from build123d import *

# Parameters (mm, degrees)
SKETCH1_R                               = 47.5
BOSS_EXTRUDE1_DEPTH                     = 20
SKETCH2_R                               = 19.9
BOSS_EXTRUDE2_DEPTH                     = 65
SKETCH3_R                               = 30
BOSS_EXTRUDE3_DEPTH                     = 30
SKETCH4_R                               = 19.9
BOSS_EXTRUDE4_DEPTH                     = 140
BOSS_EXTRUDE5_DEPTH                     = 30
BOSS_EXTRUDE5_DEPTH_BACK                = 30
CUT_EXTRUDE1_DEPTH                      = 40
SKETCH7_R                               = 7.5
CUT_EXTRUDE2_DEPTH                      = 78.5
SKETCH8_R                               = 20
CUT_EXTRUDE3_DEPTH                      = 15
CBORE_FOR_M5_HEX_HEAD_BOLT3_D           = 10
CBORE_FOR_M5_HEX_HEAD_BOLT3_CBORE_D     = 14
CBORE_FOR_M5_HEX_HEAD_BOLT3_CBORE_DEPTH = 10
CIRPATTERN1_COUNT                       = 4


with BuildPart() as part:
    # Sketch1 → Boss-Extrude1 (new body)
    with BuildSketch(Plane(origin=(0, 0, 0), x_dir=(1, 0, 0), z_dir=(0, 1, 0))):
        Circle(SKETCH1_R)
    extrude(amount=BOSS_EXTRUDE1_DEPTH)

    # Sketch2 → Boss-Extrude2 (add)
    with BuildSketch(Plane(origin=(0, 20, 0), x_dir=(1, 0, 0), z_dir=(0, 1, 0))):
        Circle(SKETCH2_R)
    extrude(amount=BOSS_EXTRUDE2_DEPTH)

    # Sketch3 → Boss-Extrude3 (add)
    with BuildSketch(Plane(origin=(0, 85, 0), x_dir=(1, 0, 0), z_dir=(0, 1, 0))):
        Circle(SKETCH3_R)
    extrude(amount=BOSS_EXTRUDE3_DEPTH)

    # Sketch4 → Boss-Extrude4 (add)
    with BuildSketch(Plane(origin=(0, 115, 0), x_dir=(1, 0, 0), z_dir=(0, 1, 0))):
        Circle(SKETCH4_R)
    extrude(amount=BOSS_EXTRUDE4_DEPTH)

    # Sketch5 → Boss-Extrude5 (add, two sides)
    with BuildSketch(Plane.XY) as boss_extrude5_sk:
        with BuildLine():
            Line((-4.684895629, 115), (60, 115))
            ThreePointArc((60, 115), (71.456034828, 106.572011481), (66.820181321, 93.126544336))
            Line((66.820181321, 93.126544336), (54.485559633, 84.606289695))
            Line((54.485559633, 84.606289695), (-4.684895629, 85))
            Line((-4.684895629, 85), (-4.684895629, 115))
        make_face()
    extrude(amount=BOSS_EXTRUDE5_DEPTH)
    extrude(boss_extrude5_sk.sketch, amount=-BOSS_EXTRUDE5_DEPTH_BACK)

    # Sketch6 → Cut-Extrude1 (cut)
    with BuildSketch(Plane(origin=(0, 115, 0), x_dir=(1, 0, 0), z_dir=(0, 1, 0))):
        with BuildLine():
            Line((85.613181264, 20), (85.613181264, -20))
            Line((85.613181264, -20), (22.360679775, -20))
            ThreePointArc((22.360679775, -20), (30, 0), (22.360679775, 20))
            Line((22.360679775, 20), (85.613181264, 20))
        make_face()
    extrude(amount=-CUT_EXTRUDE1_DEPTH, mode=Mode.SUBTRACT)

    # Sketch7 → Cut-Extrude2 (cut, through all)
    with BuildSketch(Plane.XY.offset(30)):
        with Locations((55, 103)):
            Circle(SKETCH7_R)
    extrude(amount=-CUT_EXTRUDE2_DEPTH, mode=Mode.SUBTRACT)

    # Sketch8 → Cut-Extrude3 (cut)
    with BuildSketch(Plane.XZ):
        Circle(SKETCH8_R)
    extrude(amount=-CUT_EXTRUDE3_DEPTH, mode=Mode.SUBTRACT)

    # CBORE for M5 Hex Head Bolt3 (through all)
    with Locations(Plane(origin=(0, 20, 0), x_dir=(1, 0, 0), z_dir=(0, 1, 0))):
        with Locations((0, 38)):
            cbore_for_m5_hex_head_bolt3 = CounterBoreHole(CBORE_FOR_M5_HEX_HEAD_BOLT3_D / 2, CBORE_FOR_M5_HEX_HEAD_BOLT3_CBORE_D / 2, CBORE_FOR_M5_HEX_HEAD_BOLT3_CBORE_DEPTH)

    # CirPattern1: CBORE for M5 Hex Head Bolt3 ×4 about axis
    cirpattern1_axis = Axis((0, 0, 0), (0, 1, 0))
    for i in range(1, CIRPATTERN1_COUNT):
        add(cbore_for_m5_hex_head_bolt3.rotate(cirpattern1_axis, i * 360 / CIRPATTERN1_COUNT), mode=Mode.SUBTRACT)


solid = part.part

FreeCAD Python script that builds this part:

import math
import FreeCAD as App
import Part
import Sketcher

V = App.Vector
Q = App.Units.Quantity

doc = App.newDocument("Part")
body = doc.addObject("PartDesign::Body", "Body")

# Sketch on XZ plane
sketch1 = doc.addObject("Sketcher::SketchObject", "Sketch")
body.addObject(sketch1)
sketch1.AttachmentSupport = (doc.XZ_Plane, [""])
sketch1.MapMode = "FlatFace"
sketch1.addGeometry(Part.Circle(V(0, 0, 0), V(0, 0, 1), 47.5), False)
sketch1.addConstraint(Sketcher.Constraint("Coincident", 0, 3, -1, 1))
sketch1.addConstraint(Sketcher.Constraint("Diameter", 0, Q("95 mm")))
pad1 = doc.addObject("PartDesign::Pad", "Pad")
body.addObject(pad1)
pad1.Profile = sketch1
pad1.Length = 20
pad1.Reversed = True

# Sketch on XZ plane
sketch2 = doc.addObject("Sketcher::SketchObject", "Sketch001")
body.addObject(sketch2)
sketch2.AttachmentSupport = (doc.XZ_Plane, [""])
sketch2.MapMode = "FlatFace"
sketch2.AttachmentOffset = App.Placement(V(0, 0, -20), App.Rotation())
sketch2.addGeometry(Part.Circle(V(0, 0, 0), V(0, 0, 1), 19.9), False)
sketch2.addConstraint(Sketcher.Constraint("Coincident", 0, 3, -1, 1))
sketch2.addConstraint(Sketcher.Constraint("Diameter", 0, Q("39.8 mm")))
pad2 = doc.addObject("PartDesign::Pad", "Pad001")
body.addObject(pad2)
pad2.Profile = sketch2
pad2.Length = 65
pad2.Reversed = True

# Sketch on XZ plane
sketch3 = doc.addObject("Sketcher::SketchObject", "Sketch002")
body.addObject(sketch3)
sketch3.AttachmentSupport = (doc.XZ_Plane, [""])
sketch3.MapMode = "FlatFace"
sketch3.AttachmentOffset = App.Placement(V(0, 0, -85), App.Rotation())
sketch3.addGeometry(Part.Circle(V(0, 0, 0), V(0, 0, 1), 30), False)
sketch3.addConstraint(Sketcher.Constraint("Coincident", 0, 3, -1, 1))
sketch3.addConstraint(Sketcher.Constraint("Diameter", 0, Q("60 mm")))
pad3 = doc.addObject("PartDesign::Pad", "Pad002")
body.addObject(pad3)
pad3.Profile = sketch3
pad3.Length = 30
pad3.Reversed = True

# Sketch on XZ plane
sketch4 = doc.addObject("Sketcher::SketchObject", "Sketch003")
body.addObject(sketch4)
sketch4.AttachmentSupport = (doc.XZ_Plane, [""])
sketch4.MapMode = "FlatFace"
sketch4.AttachmentOffset = App.Placement(V(0, 0, -115), App.Rotation())
sketch4.addGeometry(Part.Circle(V(0, 0, 0), V(0, 0, 1), 19.9), False)
sketch4.addConstraint(Sketcher.Constraint("Coincident", 0, 3, -1, 1))
sketch4.addConstraint(Sketcher.Constraint("Diameter", 0, Q("39.8 mm")))
pad4 = doc.addObject("PartDesign::Pad", "Pad003")
body.addObject(pad4)
pad4.Profile = sketch4
pad4.Length = 140
pad4.Reversed = True

# Sketch on XY plane
sketch5 = doc.addObject("Sketcher::SketchObject", "Sketch004")
body.addObject(sketch5)
sketch5.AttachmentSupport = (doc.XY_Plane, [""])
sketch5.MapMode = "FlatFace"
sketch5.addGeometry(Part.LineSegment(V(60, 115, 0), V(-4.684896, 115, 0)), False)
sketch5.addGeometry(Part.LineSegment(V(-4.684896, 115, 0), V(-4.684896, 85, 0)), False)
sketch5.addGeometry(Part.LineSegment(V(-4.684896, 85, 0), V(54.48556, 84.60629, 0)), False)
sketch5.addGeometry(Part.LineSegment(V(54.48556, 84.60629, 0), V(66.820181, 93.126544, 0)), False)
sketch5.addGeometry(Part.ArcOfCircle(Part.Circle(V(60, 103, 0), V(0, 0, 1), 12), math.radians(-55.364862), math.radians(90)), False)
sketch5.addConstraint(Sketcher.Constraint("Coincident", 0, 2, 1, 1))
sketch5.addConstraint(Sketcher.Constraint("Coincident", 1, 2, 2, 1))
sketch5.addConstraint(Sketcher.Constraint("Coincident", 2, 2, 3, 1))
sketch5.addConstraint(Sketcher.Constraint("Tangent", 3, 2, 4, 1))
sketch5.addConstraint(Sketcher.Constraint("Tangent", 4, 2, 0, 1))
sketch5.addConstraint(Sketcher.Constraint("Horizontal", 0))
sketch5.addConstraint(Sketcher.Constraint("Vertical", 1))
sketch5.addConstraint(Sketcher.Constraint("Radius", 4, Q("12 mm")))
sketch5.addConstraint(Sketcher.Constraint("DistanceY", 1, 2, 1, 1, Q("30 mm")))
sketch5.addConstraint(Sketcher.Constraint("DistanceX", -1, 1, 4, 3, Q("60 mm")))
sketch5.addConstraint(Sketcher.Constraint("DistanceY", -1, 1, 4, 3, Q("103 mm")))
sketch5.addConstraint(Sketcher.Constraint("Distance", 3, Q("14.991252 mm")))
sketch5.addConstraint(Sketcher.Constraint("DistanceX", 0, 2, 0, 1, Q("64.684896 mm")))
sketch5.addConstraint(Sketcher.Constraint("DistanceX", -1, 1, 2, 2, Q("54.48556 mm")))
pad5 = doc.addObject("PartDesign::Pad", "Pad004")
body.addObject(pad5)
pad5.Profile = sketch5
pad5.Type = "TwoLengths"
pad5.Length = 30
pad5.Length2 = 30

# Sketch on XZ plane
sketch6 = doc.addObject("Sketcher::SketchObject", "Sketch005")
body.addObject(sketch6)
sketch6.AttachmentSupport = (doc.XZ_Plane, [""])
sketch6.MapMode = "FlatFace"
sketch6.AttachmentOffset = App.Placement(V(0, 0, -115), App.Rotation())
sketch6.addGeometry(Part.LineSegment(V(85.613181, 20, 0), V(85.613181, -20, 0)), False)
sketch6.addGeometry(Part.LineSegment(V(85.613181, -20, 0), V(22.36068, -20, 0)), False)
sketch6.addGeometry(Part.ArcOfCircle(Part.Circle(V(0, 0, 0), V(0, 0, 1), 30), math.radians(-41.810315), math.radians(41.810315)), False)
sketch6.addGeometry(Part.LineSegment(V(22.36068, 20, 0), V(85.613181, 20, 0)), False)
sketch6.addConstraint(Sketcher.Constraint("Coincident", 0, 2, 1, 1))
sketch6.addConstraint(Sketcher.Constraint("Coincident", 1, 2, 2, 1))
sketch6.addConstraint(Sketcher.Constraint("Coincident", 2, 2, 3, 1))
sketch6.addConstraint(Sketcher.Constraint("Coincident", 3, 2, 0, 1))
sketch6.addConstraint(Sketcher.Constraint("Vertical", 0))
sketch6.addConstraint(Sketcher.Constraint("Horizontal", 1))
sketch6.addConstraint(Sketcher.Constraint("Horizontal", 3))
sketch6.addConstraint(Sketcher.Constraint("Coincident", 2, 3, -1, 1))
sketch6.addConstraint(Sketcher.Constraint("Vertical", 1, 2, 2, 2))
sketch6.addConstraint(Sketcher.Constraint("Radius", 2, Q("30 mm")))
sketch6.addConstraint(Sketcher.Constraint("DistanceY", 0, 2, 0, 1, Q("40 mm")))
sketch6.addConstraint(Sketcher.Constraint("DistanceX", 1, 2, 1, 1, Q("63.252501 mm")))
pocket1 = doc.addObject("PartDesign::Pocket", "Pocket")
body.addObject(pocket1)
pocket1.Profile = sketch6
pocket1.Length = 40
pocket1.Reversed = True

# Sketch on XY plane
sketch7 = doc.addObject("Sketcher::SketchObject", "Sketch006")
body.addObject(sketch7)
sketch7.AttachmentSupport = (doc.XY_Plane, [""])
sketch7.MapMode = "FlatFace"
sketch7.AttachmentOffset = App.Placement(V(0, 0, 30), App.Rotation())
sketch7.addGeometry(Part.Circle(V(55, 103, 0), V(0, 0, 1), 7.5), False)
sketch7.addConstraint(Sketcher.Constraint("Diameter", 0, Q("15 mm")))
sketch7.addConstraint(Sketcher.Constraint("DistanceX", -1, 1, 0, 3, Q("55 mm")))
sketch7.addConstraint(Sketcher.Constraint("DistanceY", -1, 1, 0, 3, Q("103 mm")))
pocket2 = doc.addObject("PartDesign::Pocket", "Pocket001")
body.addObject(pocket2)
pocket2.Profile = sketch7
pocket2.Type = "ThroughAll"

# Sketch on XZ plane
sketch8 = doc.addObject("Sketcher::SketchObject", "Sketch007")
body.addObject(sketch8)
sketch8.AttachmentSupport = (doc.XZ_Plane, [""])
sketch8.MapMode = "FlatFace"
sketch8.addGeometry(Part.Circle(V(0, 0, 0), V(0, 0, 1), 20), False)
sketch8.addConstraint(Sketcher.Constraint("Coincident", 0, 3, -1, 1))
sketch8.addConstraint(Sketcher.Constraint("Diameter", 0, Q("40 mm")))
pocket3 = doc.addObject("PartDesign::Pocket", "Pocket002")
body.addObject(pocket3)
pocket3.Profile = sketch8
pocket3.Length = 15

# Sketch on XZ plane
sketch9 = doc.addObject("Sketcher::SketchObject", "Sketch008")
body.addObject(sketch9)
sketch9.AttachmentSupport = (doc.XZ_Plane, [""])
sketch9.MapMode = "FlatFace"
sketch9.AttachmentOffset = App.Placement(V(0, 0, -20), App.Rotation())
sketch9.addGeometry(Part.Circle(V(0, -38, 0), V(0, 0, 1), 5), False)
sketch9.addConstraint(Sketcher.Constraint("PointOnObject", 0, 3, -2))
sketch9.addConstraint(Sketcher.Constraint("Diameter", 0, Q("10 mm")))
sketch9.addConstraint(Sketcher.Constraint("DistanceY", 0, 3, -1, 1, Q("38 mm")))
doc.recompute()
hole = doc.addObject("PartDesign::Hole", "Hole")
body.addObject(hole)
hole.Profile = sketch9
hole.ThreadType = "None"
hole.Diameter = 10
hole.DepthType = "ThroughAll"
hole.HoleCutType = "Counterbore"
hole.HoleCutDiameter = 14
hole.HoleCutDepth = 10
hole.Reversed = True
doc.recompute()

polarpattern = doc.addObject("PartDesign::PolarPattern", "PolarPattern")
body.addObject(polarpattern)
polarpattern.Originals = [hole]
polarpattern.Axis = (doc.Y_Axis, [""])
polarpattern.Angle = 360
polarpattern.Occurrences = 4
body.Tip = polarpattern

doc.recompute()
